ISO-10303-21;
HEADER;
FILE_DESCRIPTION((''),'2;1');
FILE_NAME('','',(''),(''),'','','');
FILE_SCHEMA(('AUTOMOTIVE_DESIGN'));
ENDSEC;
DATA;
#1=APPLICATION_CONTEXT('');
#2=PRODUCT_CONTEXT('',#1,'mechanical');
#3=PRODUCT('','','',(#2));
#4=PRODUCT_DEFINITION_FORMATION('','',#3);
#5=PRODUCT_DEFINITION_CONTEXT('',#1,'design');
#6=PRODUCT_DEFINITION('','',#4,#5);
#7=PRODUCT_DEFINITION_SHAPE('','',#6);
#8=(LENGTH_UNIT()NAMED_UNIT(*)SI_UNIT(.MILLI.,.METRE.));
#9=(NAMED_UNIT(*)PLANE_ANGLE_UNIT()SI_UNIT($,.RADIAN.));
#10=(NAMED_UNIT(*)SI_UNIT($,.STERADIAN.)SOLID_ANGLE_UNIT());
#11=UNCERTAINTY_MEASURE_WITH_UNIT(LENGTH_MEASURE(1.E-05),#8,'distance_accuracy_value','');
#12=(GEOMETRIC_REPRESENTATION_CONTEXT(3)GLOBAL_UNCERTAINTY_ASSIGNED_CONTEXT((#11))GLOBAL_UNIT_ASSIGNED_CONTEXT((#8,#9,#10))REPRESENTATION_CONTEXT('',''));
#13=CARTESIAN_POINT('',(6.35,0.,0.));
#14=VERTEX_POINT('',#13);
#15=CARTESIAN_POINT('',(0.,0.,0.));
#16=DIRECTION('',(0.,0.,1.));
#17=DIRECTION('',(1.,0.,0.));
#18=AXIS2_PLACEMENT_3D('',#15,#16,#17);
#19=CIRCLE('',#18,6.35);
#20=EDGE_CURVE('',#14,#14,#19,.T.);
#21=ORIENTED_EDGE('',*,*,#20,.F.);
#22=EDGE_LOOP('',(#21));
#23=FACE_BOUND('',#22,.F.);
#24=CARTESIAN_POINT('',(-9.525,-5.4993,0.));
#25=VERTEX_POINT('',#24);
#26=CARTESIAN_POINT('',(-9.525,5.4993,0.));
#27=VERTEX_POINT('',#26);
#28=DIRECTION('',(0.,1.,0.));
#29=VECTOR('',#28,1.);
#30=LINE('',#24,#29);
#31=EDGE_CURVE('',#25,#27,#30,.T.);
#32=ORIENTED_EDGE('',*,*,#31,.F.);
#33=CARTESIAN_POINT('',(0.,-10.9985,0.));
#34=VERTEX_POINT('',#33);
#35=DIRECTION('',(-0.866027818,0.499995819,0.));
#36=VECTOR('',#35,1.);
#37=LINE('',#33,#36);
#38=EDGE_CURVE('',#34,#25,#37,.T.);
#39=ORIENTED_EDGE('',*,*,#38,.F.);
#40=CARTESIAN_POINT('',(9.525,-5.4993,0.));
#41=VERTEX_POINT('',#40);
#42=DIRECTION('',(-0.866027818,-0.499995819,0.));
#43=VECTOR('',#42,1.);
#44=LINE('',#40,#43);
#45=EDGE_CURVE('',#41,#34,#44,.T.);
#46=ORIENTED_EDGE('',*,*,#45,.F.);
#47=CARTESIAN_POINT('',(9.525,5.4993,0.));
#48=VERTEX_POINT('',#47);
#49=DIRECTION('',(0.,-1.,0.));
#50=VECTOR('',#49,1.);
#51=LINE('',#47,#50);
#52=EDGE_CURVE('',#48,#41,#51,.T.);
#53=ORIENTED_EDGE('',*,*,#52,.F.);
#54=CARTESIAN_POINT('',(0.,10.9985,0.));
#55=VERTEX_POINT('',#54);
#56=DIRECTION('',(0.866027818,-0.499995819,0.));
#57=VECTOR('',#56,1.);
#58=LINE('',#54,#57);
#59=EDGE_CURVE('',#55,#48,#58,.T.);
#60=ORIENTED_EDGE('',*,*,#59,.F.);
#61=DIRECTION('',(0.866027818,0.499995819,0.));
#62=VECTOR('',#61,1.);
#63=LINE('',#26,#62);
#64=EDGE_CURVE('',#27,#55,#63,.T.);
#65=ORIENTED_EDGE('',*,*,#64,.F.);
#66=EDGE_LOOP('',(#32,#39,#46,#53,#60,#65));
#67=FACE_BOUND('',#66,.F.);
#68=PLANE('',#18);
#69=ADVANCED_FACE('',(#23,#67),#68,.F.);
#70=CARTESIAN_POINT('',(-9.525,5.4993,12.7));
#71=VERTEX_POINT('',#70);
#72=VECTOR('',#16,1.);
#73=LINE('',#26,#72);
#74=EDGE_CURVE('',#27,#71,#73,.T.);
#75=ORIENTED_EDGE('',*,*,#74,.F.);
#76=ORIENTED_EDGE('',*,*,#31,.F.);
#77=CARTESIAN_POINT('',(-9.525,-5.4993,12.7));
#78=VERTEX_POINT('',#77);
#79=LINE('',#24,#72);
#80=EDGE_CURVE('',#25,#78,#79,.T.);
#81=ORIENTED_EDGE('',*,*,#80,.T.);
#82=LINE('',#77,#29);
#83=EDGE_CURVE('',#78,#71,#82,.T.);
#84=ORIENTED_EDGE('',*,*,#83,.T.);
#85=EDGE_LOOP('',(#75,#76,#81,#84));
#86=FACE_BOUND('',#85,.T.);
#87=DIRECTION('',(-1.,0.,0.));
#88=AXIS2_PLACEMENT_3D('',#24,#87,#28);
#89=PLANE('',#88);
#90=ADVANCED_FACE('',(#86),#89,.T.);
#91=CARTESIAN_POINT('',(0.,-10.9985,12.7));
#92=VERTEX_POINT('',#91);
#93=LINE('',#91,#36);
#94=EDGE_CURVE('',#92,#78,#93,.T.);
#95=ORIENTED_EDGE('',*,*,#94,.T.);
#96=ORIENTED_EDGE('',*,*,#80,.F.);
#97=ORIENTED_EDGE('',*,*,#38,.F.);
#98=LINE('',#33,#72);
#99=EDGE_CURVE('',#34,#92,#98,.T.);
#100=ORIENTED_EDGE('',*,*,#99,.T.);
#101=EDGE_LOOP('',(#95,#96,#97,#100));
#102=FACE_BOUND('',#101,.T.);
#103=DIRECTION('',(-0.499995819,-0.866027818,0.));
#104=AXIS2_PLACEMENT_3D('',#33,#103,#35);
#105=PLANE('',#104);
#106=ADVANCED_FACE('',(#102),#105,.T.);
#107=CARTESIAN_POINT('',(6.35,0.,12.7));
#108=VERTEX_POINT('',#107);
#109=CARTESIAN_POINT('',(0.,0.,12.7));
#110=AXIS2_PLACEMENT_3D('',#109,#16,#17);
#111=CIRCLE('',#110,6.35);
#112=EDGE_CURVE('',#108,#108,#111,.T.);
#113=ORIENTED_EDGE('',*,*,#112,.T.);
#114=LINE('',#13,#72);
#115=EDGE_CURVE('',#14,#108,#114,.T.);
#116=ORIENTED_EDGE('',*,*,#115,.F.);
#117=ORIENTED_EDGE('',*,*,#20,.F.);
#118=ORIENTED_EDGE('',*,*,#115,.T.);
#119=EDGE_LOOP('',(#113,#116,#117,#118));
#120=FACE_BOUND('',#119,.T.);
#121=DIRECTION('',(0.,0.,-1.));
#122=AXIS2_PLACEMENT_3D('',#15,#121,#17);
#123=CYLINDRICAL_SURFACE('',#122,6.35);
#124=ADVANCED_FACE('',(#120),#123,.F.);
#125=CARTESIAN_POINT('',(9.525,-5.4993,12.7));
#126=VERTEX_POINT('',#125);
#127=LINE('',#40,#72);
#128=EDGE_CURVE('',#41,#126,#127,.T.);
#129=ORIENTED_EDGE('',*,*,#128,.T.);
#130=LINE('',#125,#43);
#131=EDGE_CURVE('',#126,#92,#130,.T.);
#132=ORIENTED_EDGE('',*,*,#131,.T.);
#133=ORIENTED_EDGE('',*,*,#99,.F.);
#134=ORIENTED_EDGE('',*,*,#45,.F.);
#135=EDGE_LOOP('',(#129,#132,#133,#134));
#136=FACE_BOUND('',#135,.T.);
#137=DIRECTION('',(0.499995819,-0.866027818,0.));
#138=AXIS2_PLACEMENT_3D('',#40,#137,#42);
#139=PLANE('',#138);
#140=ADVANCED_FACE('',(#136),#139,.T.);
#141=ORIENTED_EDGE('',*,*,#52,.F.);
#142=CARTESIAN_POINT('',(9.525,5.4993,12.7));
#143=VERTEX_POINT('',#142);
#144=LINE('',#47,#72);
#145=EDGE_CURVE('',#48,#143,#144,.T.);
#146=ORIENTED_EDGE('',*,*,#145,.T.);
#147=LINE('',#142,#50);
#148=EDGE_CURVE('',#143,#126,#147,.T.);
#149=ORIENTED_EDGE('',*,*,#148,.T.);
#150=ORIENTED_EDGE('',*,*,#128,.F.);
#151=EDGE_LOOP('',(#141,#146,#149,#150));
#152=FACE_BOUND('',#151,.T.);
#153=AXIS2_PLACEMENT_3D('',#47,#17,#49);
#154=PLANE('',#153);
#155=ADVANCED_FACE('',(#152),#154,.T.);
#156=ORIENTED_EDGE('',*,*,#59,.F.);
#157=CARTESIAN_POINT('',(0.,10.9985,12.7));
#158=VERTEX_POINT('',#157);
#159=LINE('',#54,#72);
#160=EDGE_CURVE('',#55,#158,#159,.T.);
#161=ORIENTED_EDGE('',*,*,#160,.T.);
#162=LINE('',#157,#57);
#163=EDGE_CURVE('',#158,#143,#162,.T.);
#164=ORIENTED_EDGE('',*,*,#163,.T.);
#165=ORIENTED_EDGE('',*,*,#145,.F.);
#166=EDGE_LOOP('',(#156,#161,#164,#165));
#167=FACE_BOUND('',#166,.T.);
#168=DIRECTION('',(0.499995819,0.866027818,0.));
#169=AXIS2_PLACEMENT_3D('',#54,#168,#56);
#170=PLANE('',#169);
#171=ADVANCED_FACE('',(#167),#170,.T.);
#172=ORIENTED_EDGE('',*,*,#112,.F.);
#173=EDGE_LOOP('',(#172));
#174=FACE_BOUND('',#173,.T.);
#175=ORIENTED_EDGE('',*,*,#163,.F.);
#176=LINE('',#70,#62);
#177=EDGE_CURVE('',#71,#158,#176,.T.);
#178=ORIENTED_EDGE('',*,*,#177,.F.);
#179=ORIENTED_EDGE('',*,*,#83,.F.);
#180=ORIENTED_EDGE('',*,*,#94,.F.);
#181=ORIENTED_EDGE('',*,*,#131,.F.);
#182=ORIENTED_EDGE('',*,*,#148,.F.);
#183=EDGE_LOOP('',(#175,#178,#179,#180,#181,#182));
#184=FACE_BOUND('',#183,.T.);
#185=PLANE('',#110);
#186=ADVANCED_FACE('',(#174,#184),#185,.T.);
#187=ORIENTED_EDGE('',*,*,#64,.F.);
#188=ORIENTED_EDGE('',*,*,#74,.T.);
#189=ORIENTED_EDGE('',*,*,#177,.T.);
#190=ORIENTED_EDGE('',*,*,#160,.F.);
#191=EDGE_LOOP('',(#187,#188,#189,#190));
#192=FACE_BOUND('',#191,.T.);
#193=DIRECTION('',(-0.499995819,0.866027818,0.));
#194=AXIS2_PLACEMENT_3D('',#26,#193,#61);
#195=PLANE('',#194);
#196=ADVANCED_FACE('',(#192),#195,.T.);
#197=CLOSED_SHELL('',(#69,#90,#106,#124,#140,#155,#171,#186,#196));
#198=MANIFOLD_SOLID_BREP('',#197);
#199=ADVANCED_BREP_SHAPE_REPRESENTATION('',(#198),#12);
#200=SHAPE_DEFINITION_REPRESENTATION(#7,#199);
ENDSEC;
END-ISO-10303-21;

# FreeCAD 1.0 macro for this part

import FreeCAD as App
import Part
import Sketcher
from FreeCAD import Vector
Q = App.Units.Quantity

doc = App.newDocument("Part")
body = doc.addObject("PartDesign::Body", "Body")

# Sketch on XY plane
sketch1 = body.newObject("Sketcher::SketchObject", "Sketch")
sketch1.AttachmentSupport = (doc.getObject("XY_Plane"), [""])
sketch1.MapMode = "FlatFace"
sketch1.addGeometry([
    Part.LineSegment(Vector(10, 5, 0), Vector(0, 11, 0)),  # 0
    Part.LineSegment(Vector(0, 11, 0), Vector(-10, 5, 0)),  # 1
    Part.LineSegment(Vector(-10, 5, 0), Vector(-10, -5, 0)),  # 2
    Part.LineSegment(Vector(-10, -5, 0), Vector(0, -11, 0)),  # 3
    Part.LineSegment(Vector(0, -11, 0), Vector(10, -5, 0)),  # 4
    Part.LineSegment(Vector(10, -5, 0), Vector(10, 5, 0)),  # 5
    Part.Circle(Vector(0, 0, 0), Vector(0, 0, 1), 6),  # 6
], False)
sketch1.addConstraint([
    Sketcher.Constraint("Coincident", 0, 2, 1, 1),
    Sketcher.Constraint("Coincident", 1, 2, 2, 1),
    Sketcher.Constraint("Coincident", 2, 2, 3, 1),
    Sketcher.Constraint("Coincident", 3, 2, 4, 1),
    Sketcher.Constraint("Coincident", 4, 2, 5, 1),
    Sketcher.Constraint("Coincident", 5, 2, 0, 1),
    Sketcher.Constraint("Vertical", 2),
    Sketcher.Constraint("Vertical", 5),
    Sketcher.Constraint("Coincident", 6, 3, -1, 1),
    Sketcher.Constraint("Symmetric", 0, 2, 3, 2, -1, 1),
    Sketcher.Constraint("Symmetric", 1, 2, 4, 2, -1, 1),
    Sketcher.Constraint("PointOnObject", 0, 2, -2),
    Sketcher.Constraint("Parallel", 0, 3),
    Sketcher.Constraint("Horizontal", 2, 2, 4, 2),
    Sketcher.Constraint("Diameter", 6, Q("0.5 in")),
    Sketcher.Constraint("DistanceX", 2, 2, 4, 2, Q("0.75 in")),
    Sketcher.Constraint("Angle", 0, Q("150.0003 deg")),
    Sketcher.Constraint("DistanceY", -1, 1, 0, 2, Q("0.433 in")),
])
pad1 = body.newObject("PartDesign::Pad", "Pad")
pad1.Profile = sketch1
pad1.Length = Q("0.5 in")

doc.recompute()
